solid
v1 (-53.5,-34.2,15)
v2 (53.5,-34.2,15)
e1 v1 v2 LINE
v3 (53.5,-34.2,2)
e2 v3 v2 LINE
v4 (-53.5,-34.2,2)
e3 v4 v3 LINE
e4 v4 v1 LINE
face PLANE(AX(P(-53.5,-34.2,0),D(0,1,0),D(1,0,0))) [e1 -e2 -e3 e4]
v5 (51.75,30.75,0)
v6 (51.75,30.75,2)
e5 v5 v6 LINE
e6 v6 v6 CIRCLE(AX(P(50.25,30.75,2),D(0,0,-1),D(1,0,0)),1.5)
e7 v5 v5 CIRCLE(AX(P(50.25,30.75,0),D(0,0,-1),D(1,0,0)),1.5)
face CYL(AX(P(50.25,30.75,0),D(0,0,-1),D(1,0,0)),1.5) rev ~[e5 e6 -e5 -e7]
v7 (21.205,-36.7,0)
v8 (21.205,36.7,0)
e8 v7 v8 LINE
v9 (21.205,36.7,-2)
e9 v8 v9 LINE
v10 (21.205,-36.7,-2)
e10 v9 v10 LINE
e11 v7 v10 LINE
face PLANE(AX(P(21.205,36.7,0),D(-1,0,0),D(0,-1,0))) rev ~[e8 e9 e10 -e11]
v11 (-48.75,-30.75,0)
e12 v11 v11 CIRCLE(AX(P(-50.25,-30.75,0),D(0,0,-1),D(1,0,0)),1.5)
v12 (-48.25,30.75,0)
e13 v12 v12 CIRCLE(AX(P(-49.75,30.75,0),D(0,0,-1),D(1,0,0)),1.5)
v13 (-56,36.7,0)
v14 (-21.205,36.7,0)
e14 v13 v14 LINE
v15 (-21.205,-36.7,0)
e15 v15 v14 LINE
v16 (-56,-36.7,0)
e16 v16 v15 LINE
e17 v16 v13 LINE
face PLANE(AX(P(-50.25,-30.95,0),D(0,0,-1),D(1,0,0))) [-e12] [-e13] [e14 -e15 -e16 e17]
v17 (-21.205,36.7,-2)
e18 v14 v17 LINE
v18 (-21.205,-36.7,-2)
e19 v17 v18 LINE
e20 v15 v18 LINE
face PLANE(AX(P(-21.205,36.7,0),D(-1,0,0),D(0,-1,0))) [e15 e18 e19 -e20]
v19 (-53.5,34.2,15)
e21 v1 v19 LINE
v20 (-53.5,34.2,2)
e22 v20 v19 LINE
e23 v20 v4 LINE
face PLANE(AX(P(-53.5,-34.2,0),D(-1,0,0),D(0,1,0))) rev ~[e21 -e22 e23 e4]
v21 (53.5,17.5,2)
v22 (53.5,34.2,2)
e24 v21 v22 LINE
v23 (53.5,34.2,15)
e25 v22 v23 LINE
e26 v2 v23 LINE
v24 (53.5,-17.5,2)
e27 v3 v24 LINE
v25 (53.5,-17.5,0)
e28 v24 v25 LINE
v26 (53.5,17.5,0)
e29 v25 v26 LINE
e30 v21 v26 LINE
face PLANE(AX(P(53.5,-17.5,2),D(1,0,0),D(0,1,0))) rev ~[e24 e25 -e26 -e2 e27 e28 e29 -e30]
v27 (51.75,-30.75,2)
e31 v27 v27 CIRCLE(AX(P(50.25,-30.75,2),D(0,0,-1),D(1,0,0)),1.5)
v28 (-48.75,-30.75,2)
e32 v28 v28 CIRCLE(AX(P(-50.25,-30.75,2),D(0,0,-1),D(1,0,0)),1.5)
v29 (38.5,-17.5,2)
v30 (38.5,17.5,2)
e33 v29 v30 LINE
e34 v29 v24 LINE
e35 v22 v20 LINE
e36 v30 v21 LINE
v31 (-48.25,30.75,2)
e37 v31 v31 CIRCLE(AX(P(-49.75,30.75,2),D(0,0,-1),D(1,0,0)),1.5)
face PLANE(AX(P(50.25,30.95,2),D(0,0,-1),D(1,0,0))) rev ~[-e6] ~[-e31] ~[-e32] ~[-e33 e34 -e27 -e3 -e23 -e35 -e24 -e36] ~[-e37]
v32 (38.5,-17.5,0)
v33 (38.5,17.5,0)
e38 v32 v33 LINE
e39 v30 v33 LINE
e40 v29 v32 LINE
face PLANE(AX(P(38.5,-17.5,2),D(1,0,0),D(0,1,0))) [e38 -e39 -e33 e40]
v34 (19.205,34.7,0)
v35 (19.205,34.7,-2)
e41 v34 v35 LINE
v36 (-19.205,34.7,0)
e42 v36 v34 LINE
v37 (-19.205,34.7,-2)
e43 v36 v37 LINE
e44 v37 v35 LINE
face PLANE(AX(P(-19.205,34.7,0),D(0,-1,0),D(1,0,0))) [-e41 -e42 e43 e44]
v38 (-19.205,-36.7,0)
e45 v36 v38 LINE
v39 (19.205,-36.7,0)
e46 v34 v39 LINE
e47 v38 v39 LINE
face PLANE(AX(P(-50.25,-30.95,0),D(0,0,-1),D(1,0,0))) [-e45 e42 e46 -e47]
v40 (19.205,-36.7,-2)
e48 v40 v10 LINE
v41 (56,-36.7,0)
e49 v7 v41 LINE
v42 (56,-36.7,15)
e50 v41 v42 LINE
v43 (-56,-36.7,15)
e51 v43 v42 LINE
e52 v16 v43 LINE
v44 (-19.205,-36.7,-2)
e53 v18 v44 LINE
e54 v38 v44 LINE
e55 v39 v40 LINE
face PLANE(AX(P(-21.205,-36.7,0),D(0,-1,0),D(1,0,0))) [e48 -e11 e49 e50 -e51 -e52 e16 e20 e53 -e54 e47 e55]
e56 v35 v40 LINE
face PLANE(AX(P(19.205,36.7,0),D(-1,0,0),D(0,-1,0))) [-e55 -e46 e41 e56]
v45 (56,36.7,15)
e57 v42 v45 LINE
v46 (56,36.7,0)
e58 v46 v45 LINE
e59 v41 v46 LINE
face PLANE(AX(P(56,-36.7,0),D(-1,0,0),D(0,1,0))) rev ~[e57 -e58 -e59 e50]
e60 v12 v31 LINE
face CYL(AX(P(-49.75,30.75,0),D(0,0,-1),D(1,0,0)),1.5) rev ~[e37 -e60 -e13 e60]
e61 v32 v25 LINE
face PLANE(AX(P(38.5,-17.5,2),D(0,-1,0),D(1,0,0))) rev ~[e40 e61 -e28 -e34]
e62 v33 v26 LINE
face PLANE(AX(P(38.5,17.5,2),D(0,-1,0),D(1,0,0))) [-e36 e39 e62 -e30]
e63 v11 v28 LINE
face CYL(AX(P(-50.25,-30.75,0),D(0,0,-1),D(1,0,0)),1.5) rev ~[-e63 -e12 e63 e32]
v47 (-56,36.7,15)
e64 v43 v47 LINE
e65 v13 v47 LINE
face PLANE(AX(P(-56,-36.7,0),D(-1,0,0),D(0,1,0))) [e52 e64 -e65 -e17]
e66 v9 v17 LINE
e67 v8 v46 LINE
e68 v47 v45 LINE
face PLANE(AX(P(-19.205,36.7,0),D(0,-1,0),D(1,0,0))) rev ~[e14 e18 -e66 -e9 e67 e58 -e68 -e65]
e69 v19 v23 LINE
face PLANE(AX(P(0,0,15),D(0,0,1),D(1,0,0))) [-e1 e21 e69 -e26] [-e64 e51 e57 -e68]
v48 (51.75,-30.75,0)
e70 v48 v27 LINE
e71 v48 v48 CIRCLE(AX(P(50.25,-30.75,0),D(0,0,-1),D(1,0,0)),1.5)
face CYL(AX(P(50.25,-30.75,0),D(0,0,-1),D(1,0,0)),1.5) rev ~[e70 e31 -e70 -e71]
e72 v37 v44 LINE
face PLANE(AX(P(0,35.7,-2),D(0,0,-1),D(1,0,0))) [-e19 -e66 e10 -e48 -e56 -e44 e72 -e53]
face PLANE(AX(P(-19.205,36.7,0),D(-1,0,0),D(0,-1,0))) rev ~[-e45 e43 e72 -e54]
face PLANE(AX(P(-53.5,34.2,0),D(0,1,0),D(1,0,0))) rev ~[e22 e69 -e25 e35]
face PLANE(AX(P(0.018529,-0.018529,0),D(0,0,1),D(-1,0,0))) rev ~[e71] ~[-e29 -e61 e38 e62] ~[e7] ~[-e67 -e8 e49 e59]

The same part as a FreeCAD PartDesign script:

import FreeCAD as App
import Part
import Sketcher

V = App.Vector


def add_polygon(sketch, points):
    """Adds a closed chain of lines whose ends are joined by coincident constraints."""
    first, n = sketch.GeometryCount, len(points)
    for a, b in zip(points, points[1:] + points[:1]):
        sketch.addGeometry(Part.LineSegment(App.Vector(*a, 0), App.Vector(*b, 0)), False)
    for i in range(n):
        sketch.addConstraint(Sketcher.Constraint("Coincident", first + i, 2, first + (i + 1) % n, 1))

doc = App.newDocument("Part")
body = doc.addObject("PartDesign::Body", "Body")

# Sketch on XY plane
sketch1 = doc.addObject("Sketcher::SketchObject", "Sketch")
body.addObject(sketch1)
sketch1.AttachmentSupport = (doc.XY_Plane, [""])
sketch1.MapMode = "FlatFace"
add_polygon(sketch1, [(-56, 37), (-56, -37), (56, -37), (56, 37)])  # lines 0-3
add_polygon(sketch1, [(54, -34), (-54, -34), (-54, 34), (54, 34)])  # lines 4-7
sketch1.addConstraint(Sketcher.Constraint("Vertical", 0))
sketch1.addConstraint(Sketcher.Constraint("Horizontal", 1))
sketch1.addConstraint(Sketcher.Constraint("Vertical", 2))
sketch1.addConstraint(Sketcher.Constraint("Horizontal", 3))
sketch1.addConstraint(Sketcher.Constraint("Horizontal", 4))
sketch1.addConstraint(Sketcher.Constraint("Vertical", 5))
sketch1.addConstraint(Sketcher.Constraint("Horizontal", 6))
sketch1.addConstraint(Sketcher.Constraint("Vertical", 7))
sketch1.addConstraint(Sketcher.Constraint("Symmetric", 0, 2, 2, 2, -1, 1))
sketch1.addConstraint(Sketcher.Constraint("Symmetric", 4, 2, 6, 2, -1, 1))
sketch1.addConstraint(Sketcher.Constraint("DistanceX", 1, 1, 1, 2, 112.0))
sketch1.addConstraint(Sketcher.Constraint("DistanceX", 4, 2, 4, 1, 107.0))
sketch1.addConstraint(Sketcher.Constraint("DistanceY", 0, 2, 0, 1, 73.4))
sketch1.addConstraint(Sketcher.Constraint("DistanceY", 5, 1, 5, 2, 68.4))
pad1 = doc.addObject("PartDesign::Pad", "Pad")
body.addObject(pad1)
pad1.Profile = sketch1
pad1.Length = 15

# Sketch on XY plane
sketch2 = doc.addObject("Sketcher::SketchObject", "Sketch001")
body.addObject(sketch2)
sketch2.AttachmentSupport = (doc.XY_Plane, [""])
sketch2.MapMode = "FlatFace"
add_polygon(sketch2, [(-54, -34), (-54, -28), (-47, -28), (-47, -34)])  # lines 0-3
add_polygon(sketch2, [(-54, 28), (-54, 34), (-46, 34), (-46, 28)])  # lines 4-7
add_polygon(sketch2, [(47, -34), (47, -28), (54, -28), (54, -34)])  # lines 8-11
add_polygon(sketch2, [(47, 28), (47, 34), (54, 34), (54, 28)])  # lines 12-15
sketch2.addConstraint(Sketcher.Constraint("Vertical", 0))
sketch2.addConstraint(Sketcher.Constraint("Horizontal", 1))
sketch2.addConstraint(Sketcher.Constraint("Vertical", 2))
sketch2.addConstraint(Sketcher.Constraint("Horizontal", 3))
sketch2.addConstraint(Sketcher.Constraint("Vertical", 4))
sketch2.addConstraint(Sketcher.Constraint("Horizontal", 5))
sketch2.addConstraint(Sketcher.Constraint("Vertical", 6))
sketch2.addConstraint(Sketcher.Constraint("Horizontal", 7))
sketch2.addConstraint(Sketcher.Constraint("Vertical", 8))
sketch2.addConstraint(Sketcher.Constraint("Horizontal", 9))
sketch2.addConstraint(Sketcher.Constraint("Vertical", 10))
sketch2.addConstraint(Sketcher.Constraint("Horizontal", 11))
sketch2.addConstraint(Sketcher.Constraint("Vertical", 12))
sketch2.addConstraint(Sketcher.Constraint("Horizontal", 13))
sketch2.addConstraint(Sketcher.Constraint("Vertical", 14))
sketch2.addConstraint(Sketcher.Constraint("Horizontal", 15))
sketch2.addConstraint(Sketcher.Constraint("Symmetric", 7, 2, 9, 2, -1, 1))
sketch2.addConstraint(Sketcher.Constraint("Symmetric", 2, 2, 12, 2, -1, 1))
sketch2.addConstraint(Sketcher.Constraint("Symmetric", 0, 2, 14, 2, -1, 1))
sketch2.addConstraint(Sketcher.Constraint("Symmetric", 1, 2, 8, 2, -2))
sketch2.addConstraint(Sketcher.Constraint("Symmetric", 3, 2, 10, 2, -2))
sketch2.addConstraint(Sketcher.Constraint("Horizontal", 5, 2, 12, 2))
sketch2.addConstraint(Sketcher.Constraint("Equal", 15, 0))
sketch2.addConstraint(Sketcher.Constraint("DistanceX", 1, 1, 1, 2, 6.5))
sketch2.addConstraint(Sketcher.Constraint("DistanceX", 5, 1, 5, 2, 7.5))
sketch2.addConstraint(Sketcher.Constraint("DistanceX", 1, 2, -1, 1, 47.0))
sketch2.addConstraint(Sketcher.Constraint("DistanceY", 0, 2, -1, 1, 27.7))
pad2 = doc.addObject("PartDesign::Pad", "Pad001")
body.addObject(pad2)
pad2.Profile = sketch2
pad2.Length = 2

# Sketch on XY plane
sketch3 = doc.addObject("Sketcher::SketchObject", "Sketch002")
body.addObject(sketch3)
sketch3.AttachmentSupport = (doc.XY_Plane, [""])
sketch3.MapMode = "FlatFace"
sketch3.addGeometry(Part.Circle(V(-50.2, -30.8, 0), V(0, 0, 1), 1.5), False)
sketch3.addGeometry(Part.Circle(V(50.2, 30.8, 0), V(0, 0, 1), 1.5), False)
sketch3.addGeometry(Part.Circle(V(-49.8, 30.8, 0), V(0, 0, 1), 1.5), False)
sketch3.addGeometry(Part.Circle(V(50.2, -30.8, 0), V(0, 0, 1), 1.5), False)
sketch3.addConstraint(Sketcher.Constraint("Equal", 0, 1))
sketch3.addConstraint(Sketcher.Constraint("Equal", 1, 2))
sketch3.addConstraint(Sketcher.Constraint("Equal", 2, 3))
sketch3.addConstraint(Sketcher.Constraint("Symmetric", 0, 3, 1, 3, -1, 1))
sketch3.addConstraint(Sketcher.Constraint("Symmetric", 0, 3, 3, 3, -2))
sketch3.addConstraint(Sketcher.Constraint("Horizontal", 1, 3, 2, 3))
sketch3.addConstraint(Sketcher.Constraint("Diameter", 0, 3.0))
sketch3.addConstraint(Sketcher.Constraint("DistanceX", 2, 3, 1, 3, 100.0))
sketch3.addConstraint(Sketcher.Constraint("DistanceX", 0, 3, 1, 3, 100.5))
sketch3.addConstraint(Sketcher.Constraint("DistanceY", 0, 3, 1, 3, 61.5))
pocket1 = doc.addObject("PartDesign::Pocket", "Pocket")
body.addObject(pocket1)
pocket1.Profile = sketch3
pocket1.Length = 2
pocket1.Reversed = True

# Sketch on XY plane
sketch4 = doc.addObject("Sketcher::SketchObject", "Sketch003")
body.addObject(sketch4)
sketch4.AttachmentSupport = (doc.XY_Plane, [""])
sketch4.MapMode = "FlatFace"
add_polygon(sketch4, [(-21.2, -36.7), (-21.2, 36.7), (-19.2, 36.7), (-19.2, -36.7)])  # lines 0-3
add_polygon(sketch4, [(19.2, -36.7), (19.2, 36.7), (21.2, 36.7), (21.2, -36.7)])  # lines 4-7
sketch4.addConstraint(Sketcher.Constraint("Vertical", 0))
sketch4.addConstraint(Sketcher.Constraint("Horizontal", 1))
sketch4.addConstraint(Sketcher.Constraint("Vertical", 2))
sketch4.addConstraint(Sketcher.Constraint("Horizontal", 3))
sketch4.addConstraint(Sketcher.Constraint("Vertical", 4))
sketch4.addConstraint(Sketcher.Constraint("Horizontal", 5))
sketch4.addConstraint(Sketcher.Constraint("Vertical", 6))
sketch4.addConstraint(Sketcher.Constraint("Horizontal", 7))
sketch4.addConstraint(Sketcher.Constraint("Symmetric", 2, 2, 4, 2, -1, 1))
sketch4.addConstraint(Sketcher.Constraint("Symmetric", 0, 2, 6, 2, -1, 1))
sketch4.addConstraint(Sketcher.Constraint("Horizontal", 1, 2, 4, 2))
sketch4.addConstraint(Sketcher.Constraint("DistanceX", 1, 1, 1, 2, 2.0))
sketch4.addConstraint(Sketcher.Constraint("DistanceY", 0, 1, 0, 2, 73.4))
sketch4.addConstraint(Sketcher.Constraint("DistanceX", 1, 2, 4, 2, 38.41))
pad3 = doc.addObject("PartDesign::Pad", "Pad002")
body.addObject(pad3)
pad3.Profile = sketch4
pad3.Length = 2
pad3.Reversed = True

# Sketch on XY plane
sketch5 = doc.addObject("Sketcher::SketchObject", "Sketch004")
body.addObject(sketch5)
sketch5.AttachmentSupport = (doc.XY_Plane, [""])
sketch5.MapMode = "FlatFace"
add_polygon(sketch5, [(-46, 34), (47, 34), (47, 28), (54, 28), (54, -28), (47, -28), (47, -34), (-47, -34), (-47, -28), (-54, -28), (-54, 28), (-46, 28)])  # lines 0-11
sketch5.addConstraint(Sketcher.Constraint("Horizontal", 0))
sketch5.addConstraint(Sketcher.Constraint("Vertical", 1))
sketch5.addConstraint(Sketcher.Constraint("Horizontal", 2))
sketch5.addConstraint(Sketcher.Constraint("Vertical", 3))
sketch5.addConstraint(Sketcher.Constraint("Horizontal", 4))
sketch5.addConstraint(Sketcher.Constraint("Vertical", 5))
sketch5.addConstraint(Sketcher.Constraint("Horizontal", 6))
sketch5.addConstraint(Sketcher.Constraint("Vertical", 7))
sketch5.addConstraint(Sketcher.Constraint("Horizontal", 8))
sketch5.addConstraint(Sketcher.Constraint("Vertical", 9))
sketch5.addConstraint(Sketcher.Constraint("Horizontal", 10))
sketch5.addConstraint(Sketcher.Constraint("Vertical", 11))
sketch5.addConstraint(Sketcher.Constraint("Symmetric", 0, 2, 6, 2, -1, 1))
sketch5.addConstraint(Sketcher.Constraint("Symmetric", 2, 2, 8, 2, -1, 1))
sketch5.addConstraint(Sketcher.Constraint("Symmetric", 4, 2, 7, 2, -2))
sketch5.addConstraint(Sketcher.Constraint("Horizontal", 2, 2, 9, 2))
sketch5.addConstraint(Sketcher.Constraint("Equal", 8, 1))
sketch5.addConstraint(Sketcher.Constraint("DistanceX", 0, 1, 0, 2, 93.0))
sketch5.addConstraint(Sketcher.Constraint("DistanceX", 6, 2, 6, 1, 94.0))
sketch5.addConstraint(Sketcher.Constraint("DistanceX", 2, 1, 2, 2, 6.5))
sketch5.addConstraint(Sketcher.Constraint("DistanceY", 3, 2, 3, 1, 55.4))
pad4 = doc.addObject("PartDesign::Pad", "Pad003")
body.addObject(pad4)
pad4.Profile = sketch5
pad4.Length = 2

# Sketch on XY plane
sketch6 = doc.addObject("Sketcher::SketchObject", "Sketch005")
body.addObject(sketch6)
sketch6.AttachmentSupport = (doc.XY_Plane, [""])
sketch6.MapMode = "FlatFace"
sketch6.AttachmentOffset = App.Placement(V(0, 0, 2), App.Rotation())
add_polygon(sketch6, [(38, 18), (38, -18), (54, -18), (54, 18)])  # lines 0-3
sketch6.addConstraint(Sketcher.Constraint("Vertical", 0))
sketch6.addConstraint(Sketcher.Constraint("Horizontal", 1))
sketch6.addConstraint(Sketcher.Constraint("Vertical", 2))
sketch6.addConstraint(Sketcher.Constraint("Horizontal", 3))
sketch6.addConstraint(Sketcher.Constraint("DistanceX", 1, 1, 1, 2, 15.0))
sketch6.addConstraint(Sketcher.Constraint("DistanceY", 0, 2, 0, 1, 35.0))
sketch6.addConstraint(Sketcher.Constraint("DistanceX", -1, 1, 0, 2, 38.5))
sketch6.addConstraint(Sketcher.Constraint("DistanceY", 0, 2, -1, 1, 17.5))
pocket2 = doc.addObject("PartDesign::Pocket", "Pocket001")
body.addObject(pocket2)
pocket2.Profile = sketch6
pocket2.Length = 5

# Sketch on XY plane
sketch7 = doc.addObject("Sketcher::SketchObject", "Sketch006")
body.addObject(sketch7)
sketch7.AttachmentSupport = (doc.XY_Plane, [""])
sketch7.MapMode = "FlatFace"
add_polygon(sketch7, [(-19.2, 34.7), (-19.2, 36.7), (19.2, 36.7), (19.2, 34.7)])  # lines 0-3
sketch7.addConstraint(Sketcher.Constraint("Vertical", 0))
sketch7.addConstraint(Sketcher.Constraint("Horizontal", 1))
sketch7.addConstraint(Sketcher.Constraint("Vertical", 2))
sketch7.addConstraint(Sketcher.Constraint("Horizontal", 3))
sketch7.addConstraint(Sketcher.Constraint("DistanceY", 0, 1, 0, 2, 2.0))
sketch7.addConstraint(Sketcher.Constraint("DistanceX", 1, 1, 1, 2, 38.41))
sketch7.addConstraint(Sketcher.Constraint("DistanceY", -1, 1, 0, 2, 36.7))
sketch7.addConstraint(Sketcher.Constraint("DistanceX", 0, 2, -1, 1, 19.205))
pad5 = doc.addObject("PartDesign::Pad", "Pad004")
body.addObject(pad5)
pad5.Profile = sketch7
pad5.Length = 2
pad5.Reversed = True

doc.recompute()
